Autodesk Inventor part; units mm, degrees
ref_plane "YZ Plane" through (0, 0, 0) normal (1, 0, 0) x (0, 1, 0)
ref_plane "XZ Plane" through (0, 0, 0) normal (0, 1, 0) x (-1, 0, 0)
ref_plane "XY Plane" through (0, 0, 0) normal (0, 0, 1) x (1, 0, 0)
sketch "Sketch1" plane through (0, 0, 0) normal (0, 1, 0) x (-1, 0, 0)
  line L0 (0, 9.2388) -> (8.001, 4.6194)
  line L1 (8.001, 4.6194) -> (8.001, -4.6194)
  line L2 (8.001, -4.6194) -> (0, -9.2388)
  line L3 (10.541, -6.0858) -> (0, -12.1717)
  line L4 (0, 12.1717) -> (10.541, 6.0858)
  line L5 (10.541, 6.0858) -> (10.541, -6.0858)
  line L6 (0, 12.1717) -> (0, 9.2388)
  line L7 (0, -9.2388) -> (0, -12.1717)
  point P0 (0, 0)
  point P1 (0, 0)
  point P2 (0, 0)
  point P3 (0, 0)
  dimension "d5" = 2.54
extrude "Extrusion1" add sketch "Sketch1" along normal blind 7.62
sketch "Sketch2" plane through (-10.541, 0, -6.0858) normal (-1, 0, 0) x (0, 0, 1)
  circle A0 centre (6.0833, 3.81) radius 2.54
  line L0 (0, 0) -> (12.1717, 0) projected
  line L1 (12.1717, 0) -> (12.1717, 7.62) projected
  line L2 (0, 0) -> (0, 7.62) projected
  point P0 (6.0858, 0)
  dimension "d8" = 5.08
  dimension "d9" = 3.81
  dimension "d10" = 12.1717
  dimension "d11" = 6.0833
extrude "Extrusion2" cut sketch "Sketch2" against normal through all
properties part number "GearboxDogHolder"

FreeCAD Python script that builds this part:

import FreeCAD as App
import Part
import Sketcher
Q = App.Units.Quantity

doc = App.newDocument("Part")
body = doc.addObject("PartDesign::Body", "Body")

# Sketch on XZ plane
sketch1 = body.newObject("Sketcher::SketchObject", "Sketch")
sketch1.AttachmentSupport = (doc.getObject("XZ_Plane"), [""])
sketch1.MapMode = "FlatFace"
sketch1.addGeometry(Part.LineSegment(App.Vector(0, 12.2, 0), App.Vector(0, 9.2, 0)), False)
sketch1.addGeometry(Part.LineSegment(App.Vector(0, 9.2, 0), App.Vector(-8, 4.6, 0)), False)
sketch1.addGeometry(Part.LineSegment(App.Vector(-8, 4.6, 0), App.Vector(-8, -4.6, 0)), False)
sketch1.addGeometry(Part.LineSegment(App.Vector(-8, -4.6, 0), App.Vector(0, -9.2, 0)), False)
sketch1.addGeometry(Part.LineSegment(App.Vector(0, -9.2, 0), App.Vector(0, -12.2, 0)), False)
sketch1.addGeometry(Part.LineSegment(App.Vector(0, -12.2, 0), App.Vector(-10.5, -6.1, 0)), False)
sketch1.addGeometry(Part.LineSegment(App.Vector(-10.5, -6.1, 0), App.Vector(-10.5, 6.1, 0)), False)
sketch1.addGeometry(Part.LineSegment(App.Vector(-10.5, 6.1, 0), App.Vector(0, 12.2, 0)), False)
sketch1.addConstraint(Sketcher.Constraint("Coincident", 0, 2, 1, 1))
sketch1.addConstraint(Sketcher.Constraint("Coincident", 1, 2, 2, 1))
sketch1.addConstraint(Sketcher.Constraint("Coincident", 2, 2, 3, 1))
sketch1.addConstraint(Sketcher.Constraint("Coincident", 3, 2, 4, 1))
sketch1.addConstraint(Sketcher.Constraint("Coincident", 4, 2, 5, 1))
sketch1.addConstraint(Sketcher.Constraint("Coincident", 5, 2, 6, 1))
sketch1.addConstraint(Sketcher.Constraint("Coincident", 6, 2, 7, 1))
sketch1.addConstraint(Sketcher.Constraint("Coincident", 7, 2, 0, 1))
sketch1.addConstraint(Sketcher.Constraint("Vertical", 0))
sketch1.addConstraint(Sketcher.Constraint("Vertical", 2))
sketch1.addConstraint(Sketcher.Constraint("Vertical", 4))
sketch1.addConstraint(Sketcher.Constraint("Vertical", 6))
sketch1.addConstraint(Sketcher.Constraint("Symmetric", 0, 2, 3, 2, -1, 1))
sketch1.addConstraint(Sketcher.Constraint("Symmetric", 4, 2, 7, 2, -1))
sketch1.addConstraint(Sketcher.Constraint("Parallel", 3, 5))
sketch1.addConstraint(Sketcher.Constraint("Parallel", 1, 7))
sketch1.addConstraint(Sketcher.Constraint("Equal", 1, 3))
sketch1.addConstraint(Sketcher.Constraint("DistanceX", 5, 2, 2, 2, Q("0.1 in")))
sketch1.addConstraint(Sketcher.Constraint("Angle", 1, Q("-150 deg")))
sketch1.addConstraint(Sketcher.Constraint("DistanceY", 6, 1, 6, 2, Q("0.4792 in")))
sketch1.addConstraint(Sketcher.Constraint("DistanceX", 1, 2, -1, 1, Q("0.315 in")))
sketch1.addConstraint(Sketcher.Constraint("DistanceY", 0, 2, 0, 1, 2.933))
pad1 = body.newObject("PartDesign::Pad", "Pad")
pad1.Profile = sketch1
pad1.Length = Q("0.3 in")
pad1.Reversed = True

# Sketch on YZ plane
sketch2 = body.newObject("Sketcher::SketchObject", "Sketch001")
sketch2.AttachmentSupport = (doc.getObject("YZ_Plane"), [""])
sketch2.MapMode = "FlatFace"
sketch2.AttachmentOffset = App.Placement(App.Vector(0, 0, -0.415 * 25.4), App.Rotation())
sketch2.addGeometry(Part.Circle(App.Vector(3.8, 0, 0), App.Vector(0, 0, 1), 2.5), False)
sketch2.addConstraint(Sketcher.Constraint("Diameter", 0, Q("0.2 in")))
sketch2.addConstraint(Sketcher.Constraint("DistanceX", -1, 1, 0, 3, Q("0.15 in")))
sketch2.addConstraint(Sketcher.Constraint("DistanceY", 0, 3, -1, 1, Q("0.0001 in")))
pocket1 = body.newObject("PartDesign::Pocket", "Pocket")
pocket1.Profile = sketch2
pocket1.Type = "ThroughAll"
pocket1.Reversed = True

doc.recompute()
